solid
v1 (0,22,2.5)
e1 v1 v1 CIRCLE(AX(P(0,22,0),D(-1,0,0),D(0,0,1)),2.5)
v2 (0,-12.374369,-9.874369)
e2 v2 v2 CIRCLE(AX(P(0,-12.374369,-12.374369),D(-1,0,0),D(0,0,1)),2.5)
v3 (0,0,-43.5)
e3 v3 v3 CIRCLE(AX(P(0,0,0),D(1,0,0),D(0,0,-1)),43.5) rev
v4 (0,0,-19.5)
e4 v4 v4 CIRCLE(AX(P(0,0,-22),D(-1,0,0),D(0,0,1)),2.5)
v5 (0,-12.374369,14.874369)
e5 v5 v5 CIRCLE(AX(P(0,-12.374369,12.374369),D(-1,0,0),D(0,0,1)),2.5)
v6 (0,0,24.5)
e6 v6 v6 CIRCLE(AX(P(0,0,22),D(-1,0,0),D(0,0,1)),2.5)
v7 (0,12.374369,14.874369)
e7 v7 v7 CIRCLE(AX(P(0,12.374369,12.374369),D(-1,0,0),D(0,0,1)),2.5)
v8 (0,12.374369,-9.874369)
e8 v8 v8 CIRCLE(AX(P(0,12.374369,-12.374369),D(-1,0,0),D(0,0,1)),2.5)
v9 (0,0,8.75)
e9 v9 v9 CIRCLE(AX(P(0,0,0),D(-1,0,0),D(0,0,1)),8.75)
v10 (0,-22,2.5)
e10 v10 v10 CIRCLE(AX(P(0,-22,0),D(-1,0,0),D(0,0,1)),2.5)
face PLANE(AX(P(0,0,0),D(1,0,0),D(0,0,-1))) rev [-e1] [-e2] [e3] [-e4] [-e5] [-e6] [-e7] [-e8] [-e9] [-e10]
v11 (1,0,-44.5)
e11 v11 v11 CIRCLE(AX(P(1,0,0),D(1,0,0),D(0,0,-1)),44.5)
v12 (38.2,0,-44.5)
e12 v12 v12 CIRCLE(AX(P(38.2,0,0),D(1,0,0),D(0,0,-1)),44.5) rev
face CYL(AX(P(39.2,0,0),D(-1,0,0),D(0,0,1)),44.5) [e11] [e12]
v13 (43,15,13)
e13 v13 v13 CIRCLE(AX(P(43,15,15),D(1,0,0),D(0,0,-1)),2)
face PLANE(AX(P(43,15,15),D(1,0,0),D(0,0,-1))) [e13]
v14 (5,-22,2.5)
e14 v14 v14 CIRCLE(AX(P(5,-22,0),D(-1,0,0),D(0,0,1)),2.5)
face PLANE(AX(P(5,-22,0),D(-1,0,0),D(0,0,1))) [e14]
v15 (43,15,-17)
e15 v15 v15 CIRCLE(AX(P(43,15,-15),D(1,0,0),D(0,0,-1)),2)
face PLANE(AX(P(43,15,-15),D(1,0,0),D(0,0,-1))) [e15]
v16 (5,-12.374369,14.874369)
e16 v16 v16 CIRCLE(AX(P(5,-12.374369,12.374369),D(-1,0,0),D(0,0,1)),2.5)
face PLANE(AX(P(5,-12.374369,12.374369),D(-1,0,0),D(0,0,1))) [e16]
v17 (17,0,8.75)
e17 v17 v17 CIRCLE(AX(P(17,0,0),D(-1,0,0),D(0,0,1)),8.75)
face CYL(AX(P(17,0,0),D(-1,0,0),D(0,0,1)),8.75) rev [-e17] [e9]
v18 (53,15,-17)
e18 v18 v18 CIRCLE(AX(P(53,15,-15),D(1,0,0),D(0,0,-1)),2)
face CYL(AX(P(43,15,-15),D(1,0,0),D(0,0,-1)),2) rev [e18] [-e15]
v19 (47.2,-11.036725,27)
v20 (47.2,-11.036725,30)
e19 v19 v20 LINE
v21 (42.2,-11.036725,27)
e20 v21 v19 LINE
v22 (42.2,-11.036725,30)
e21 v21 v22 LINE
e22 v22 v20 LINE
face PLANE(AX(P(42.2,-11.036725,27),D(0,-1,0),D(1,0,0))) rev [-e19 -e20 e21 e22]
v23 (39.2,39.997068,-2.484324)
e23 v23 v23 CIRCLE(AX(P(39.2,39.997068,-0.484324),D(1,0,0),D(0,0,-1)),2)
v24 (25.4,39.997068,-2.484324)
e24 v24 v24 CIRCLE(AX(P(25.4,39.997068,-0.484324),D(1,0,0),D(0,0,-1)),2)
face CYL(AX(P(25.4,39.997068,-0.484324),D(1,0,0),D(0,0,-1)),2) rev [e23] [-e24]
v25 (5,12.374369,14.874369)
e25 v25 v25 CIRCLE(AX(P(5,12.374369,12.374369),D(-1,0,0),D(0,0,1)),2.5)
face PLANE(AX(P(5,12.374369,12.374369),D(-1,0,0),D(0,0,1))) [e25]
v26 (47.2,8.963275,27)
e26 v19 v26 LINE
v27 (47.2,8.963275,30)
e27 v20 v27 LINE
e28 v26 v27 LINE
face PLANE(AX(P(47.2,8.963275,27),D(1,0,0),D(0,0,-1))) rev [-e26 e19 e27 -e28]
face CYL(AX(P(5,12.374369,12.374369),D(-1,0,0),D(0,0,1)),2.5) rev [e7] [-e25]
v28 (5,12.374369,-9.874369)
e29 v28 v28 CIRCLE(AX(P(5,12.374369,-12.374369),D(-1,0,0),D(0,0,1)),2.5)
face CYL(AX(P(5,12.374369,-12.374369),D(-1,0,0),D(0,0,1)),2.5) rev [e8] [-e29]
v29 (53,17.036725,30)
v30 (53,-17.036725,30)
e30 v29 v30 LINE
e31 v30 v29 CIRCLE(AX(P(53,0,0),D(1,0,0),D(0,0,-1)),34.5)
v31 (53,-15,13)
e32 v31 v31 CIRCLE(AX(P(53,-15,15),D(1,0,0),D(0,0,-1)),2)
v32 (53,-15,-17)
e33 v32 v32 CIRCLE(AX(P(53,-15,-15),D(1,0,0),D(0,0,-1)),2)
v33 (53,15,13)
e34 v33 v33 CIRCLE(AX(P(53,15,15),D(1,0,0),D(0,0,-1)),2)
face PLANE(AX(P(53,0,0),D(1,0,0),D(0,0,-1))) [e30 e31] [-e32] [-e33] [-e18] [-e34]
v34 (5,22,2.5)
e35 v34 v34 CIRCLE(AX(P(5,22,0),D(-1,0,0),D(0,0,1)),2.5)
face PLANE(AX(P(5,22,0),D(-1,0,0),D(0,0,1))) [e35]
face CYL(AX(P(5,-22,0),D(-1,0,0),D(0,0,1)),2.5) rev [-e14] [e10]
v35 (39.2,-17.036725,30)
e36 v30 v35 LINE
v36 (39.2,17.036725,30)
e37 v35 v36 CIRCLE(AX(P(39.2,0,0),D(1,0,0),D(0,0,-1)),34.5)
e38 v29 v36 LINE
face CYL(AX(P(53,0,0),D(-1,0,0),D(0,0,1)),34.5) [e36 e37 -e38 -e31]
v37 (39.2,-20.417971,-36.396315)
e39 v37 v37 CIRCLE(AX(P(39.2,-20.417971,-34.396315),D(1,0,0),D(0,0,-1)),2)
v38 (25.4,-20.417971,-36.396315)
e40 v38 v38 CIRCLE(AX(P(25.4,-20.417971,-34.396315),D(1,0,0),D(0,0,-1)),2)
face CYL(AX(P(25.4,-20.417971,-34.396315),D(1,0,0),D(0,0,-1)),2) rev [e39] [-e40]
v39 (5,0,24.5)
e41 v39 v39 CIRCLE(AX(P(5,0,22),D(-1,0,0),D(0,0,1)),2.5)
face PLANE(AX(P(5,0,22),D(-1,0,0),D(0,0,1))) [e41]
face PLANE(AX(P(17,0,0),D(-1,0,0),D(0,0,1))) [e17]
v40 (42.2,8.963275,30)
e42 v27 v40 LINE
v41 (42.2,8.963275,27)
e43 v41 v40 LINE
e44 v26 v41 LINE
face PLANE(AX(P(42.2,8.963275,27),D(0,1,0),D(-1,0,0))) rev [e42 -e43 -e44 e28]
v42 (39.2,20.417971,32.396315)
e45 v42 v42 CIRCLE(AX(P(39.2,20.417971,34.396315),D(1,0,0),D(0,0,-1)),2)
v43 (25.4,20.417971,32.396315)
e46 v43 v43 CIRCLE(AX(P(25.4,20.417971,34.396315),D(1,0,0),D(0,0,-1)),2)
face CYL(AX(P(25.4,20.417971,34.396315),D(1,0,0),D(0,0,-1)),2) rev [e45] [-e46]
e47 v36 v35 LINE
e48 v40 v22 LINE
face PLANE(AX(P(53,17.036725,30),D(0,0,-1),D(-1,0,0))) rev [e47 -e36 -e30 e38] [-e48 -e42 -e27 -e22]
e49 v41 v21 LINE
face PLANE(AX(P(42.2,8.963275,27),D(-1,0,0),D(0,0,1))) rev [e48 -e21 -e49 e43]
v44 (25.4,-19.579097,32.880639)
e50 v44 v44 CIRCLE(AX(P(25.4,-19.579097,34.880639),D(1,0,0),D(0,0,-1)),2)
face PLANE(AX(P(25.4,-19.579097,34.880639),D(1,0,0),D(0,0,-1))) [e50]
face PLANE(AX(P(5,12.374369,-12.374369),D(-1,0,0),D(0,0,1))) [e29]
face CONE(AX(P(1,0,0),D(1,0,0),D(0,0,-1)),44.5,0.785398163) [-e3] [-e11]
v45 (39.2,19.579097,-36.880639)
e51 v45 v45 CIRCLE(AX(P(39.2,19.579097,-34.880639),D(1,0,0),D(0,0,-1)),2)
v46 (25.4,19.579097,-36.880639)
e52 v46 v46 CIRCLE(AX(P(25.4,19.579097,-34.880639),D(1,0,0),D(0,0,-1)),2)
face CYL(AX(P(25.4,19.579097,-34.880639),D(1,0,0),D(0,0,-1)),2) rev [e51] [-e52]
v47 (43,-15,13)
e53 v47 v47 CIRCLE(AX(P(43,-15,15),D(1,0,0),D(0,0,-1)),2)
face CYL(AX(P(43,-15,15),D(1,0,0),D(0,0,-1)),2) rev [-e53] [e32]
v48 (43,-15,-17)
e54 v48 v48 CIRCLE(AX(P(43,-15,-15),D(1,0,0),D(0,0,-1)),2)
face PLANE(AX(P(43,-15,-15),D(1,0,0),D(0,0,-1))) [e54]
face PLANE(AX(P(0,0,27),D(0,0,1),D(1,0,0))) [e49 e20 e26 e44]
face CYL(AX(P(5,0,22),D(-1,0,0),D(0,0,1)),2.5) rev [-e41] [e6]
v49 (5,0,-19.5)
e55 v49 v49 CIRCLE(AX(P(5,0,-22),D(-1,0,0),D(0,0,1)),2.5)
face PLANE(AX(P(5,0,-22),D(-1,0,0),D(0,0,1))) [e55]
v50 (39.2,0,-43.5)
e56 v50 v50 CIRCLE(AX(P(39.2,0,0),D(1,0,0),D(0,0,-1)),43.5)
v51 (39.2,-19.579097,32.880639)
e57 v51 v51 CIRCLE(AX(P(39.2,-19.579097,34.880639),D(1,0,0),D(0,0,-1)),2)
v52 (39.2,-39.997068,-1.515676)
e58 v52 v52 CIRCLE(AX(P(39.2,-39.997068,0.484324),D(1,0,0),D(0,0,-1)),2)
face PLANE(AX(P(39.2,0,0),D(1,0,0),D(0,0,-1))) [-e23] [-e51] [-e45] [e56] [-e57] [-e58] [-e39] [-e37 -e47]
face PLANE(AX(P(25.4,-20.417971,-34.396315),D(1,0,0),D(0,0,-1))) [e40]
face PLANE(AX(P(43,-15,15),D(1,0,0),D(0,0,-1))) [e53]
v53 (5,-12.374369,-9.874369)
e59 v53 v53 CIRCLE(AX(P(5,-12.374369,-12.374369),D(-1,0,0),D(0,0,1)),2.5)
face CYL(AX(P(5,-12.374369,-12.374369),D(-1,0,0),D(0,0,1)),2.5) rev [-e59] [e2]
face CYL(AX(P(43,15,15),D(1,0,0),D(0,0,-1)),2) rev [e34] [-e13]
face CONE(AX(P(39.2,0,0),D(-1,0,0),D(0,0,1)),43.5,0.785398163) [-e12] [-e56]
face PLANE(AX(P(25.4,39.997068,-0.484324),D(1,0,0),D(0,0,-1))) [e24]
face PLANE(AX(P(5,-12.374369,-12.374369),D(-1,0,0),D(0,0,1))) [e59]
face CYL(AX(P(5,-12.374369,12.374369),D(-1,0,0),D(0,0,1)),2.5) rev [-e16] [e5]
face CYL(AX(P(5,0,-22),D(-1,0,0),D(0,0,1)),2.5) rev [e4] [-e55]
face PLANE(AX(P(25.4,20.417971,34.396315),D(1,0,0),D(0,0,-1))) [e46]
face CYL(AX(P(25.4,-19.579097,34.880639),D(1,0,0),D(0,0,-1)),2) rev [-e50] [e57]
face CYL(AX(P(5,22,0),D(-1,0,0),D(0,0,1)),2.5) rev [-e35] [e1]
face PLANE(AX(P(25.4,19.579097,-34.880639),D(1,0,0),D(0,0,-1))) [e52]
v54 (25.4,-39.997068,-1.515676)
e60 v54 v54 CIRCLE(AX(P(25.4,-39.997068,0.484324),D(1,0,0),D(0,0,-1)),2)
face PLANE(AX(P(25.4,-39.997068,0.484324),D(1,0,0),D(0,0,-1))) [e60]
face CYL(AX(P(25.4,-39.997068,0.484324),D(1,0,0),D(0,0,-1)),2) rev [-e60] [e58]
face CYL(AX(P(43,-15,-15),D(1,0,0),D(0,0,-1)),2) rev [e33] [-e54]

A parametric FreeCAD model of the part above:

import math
import FreeCAD as App
import Part
import Sketcher

V = App.Vector


def edges_at(feature, points):
    """Names of the edges that pass closest to the given points."""
    edges = feature.Shape.Edges
    near = lambda p: min(range(len(edges)), key=lambda i: edges[i].distToShape(Part.Vertex(*p))[0])
    return sorted({f"Edge{near(p) + 1}" for p in points})

doc = App.newDocument("Part")
body = doc.addObject("PartDesign::Body", "Body")

# Sketch on YZ plane
sketch1 = doc.addObject("Sketcher::SketchObject", "Sketch")
body.addObject(sketch1)
sketch1.AttachmentSupport = (doc.YZ_Plane, [""])
sketch1.MapMode = "FlatFace"
sketch1.addGeometry(Part.Circle(V(0, 0, 0), V(0, 0, 1), 44), False)
sketch1.addConstraint([
    Sketcher.Constraint("Coincident", 0, 3, -1, 1),
    Sketcher.Constraint("Diameter", 0, 89.0),
])
pad1 = doc.addObject("PartDesign::Pad", "Pad")
body.addObject(pad1)
pad1.Profile = sketch1
pad1.Length = 39.2

# Sketch on YZ plane
sketch2 = doc.addObject("Sketcher::SketchObject", "Sketch001")
body.addObject(sketch2)
sketch2.AttachmentSupport = (doc.YZ_Plane, [""])
sketch2.MapMode = "FlatFace"
sketch2.AttachmentOffset = App.Placement(V(0, 0, 39.2), App.Rotation())
sketch2.addGeometry([
    Part.LineSegment(V(17, 30, 0), V(-17, 30, 0)),
    Part.ArcOfCircle(Part.Circle(V(0, 0, 0), V(0, 0, 1), 34), math.radians(120), math.radians(420)),
], False)
sketch2.addConstraint([
    Sketcher.Constraint("Coincident", 0, 1, 1, 2),
    Sketcher.Constraint("Coincident", 1, 1, 0, 2),
    Sketcher.Constraint("Horizontal", 0),
    Sketcher.Constraint("Coincident", 1, 3, -1, 1),
    Sketcher.Constraint("Radius", 1, 34.5),
    Sketcher.Constraint("DistanceY", -1, 1, 0, 1, 30.0),
])
pad2 = doc.addObject("PartDesign::Pad", "Pad001")
body.addObject(pad2)
pad2.Profile = sketch2
pad2.Length = 13.8

# Sketch on YZ plane
sketch3 = doc.addObject("Sketcher::SketchObject", "Sketch002")
body.addObject(sketch3)
sketch3.AttachmentSupport = (doc.YZ_Plane, [""])
sketch3.MapMode = "FlatFace"
sketch3.AttachmentOffset = App.Placement(V(0, 0, 39.2), App.Rotation())
sketch3.addGeometry([
    Part.Circle(V(40, -0.5, 0), V(0, 0, 1), 2),  # 0
    Part.Circle(V(19.6, -34.9, 0), V(0, 0, 1), 2),  # 1
    Part.Circle(V(-20.4, -34.4, 0), V(0, 0, 1), 2),  # 2
    Part.Circle(V(-40, 0.5, 0), V(0, 0, 1), 2),  # 3
    Part.Circle(V(-19.6, 34.9, 0), V(0, 0, 1), 2),  # 4
    Part.Circle(V(20.4, 34.4, 0), V(0, 0, 1), 2),  # 5
], False)
sketch3.addConstraint([
    Sketcher.Constraint("Equal", 0, 1),
    Sketcher.Constraint("Equal", 1, 2),
    Sketcher.Constraint("Equal", 2, 3),
    Sketcher.Constraint("Equal", 3, 4),
    Sketcher.Constraint("Equal", 4, 5),
    Sketcher.Constraint("Symmetric", 0, 3, 3, 3, -1, 1),
    Sketcher.Constraint("Symmetric", 1, 3, 4, 3, -1, 1),
    Sketcher.Constraint("Symmetric", 2, 3, 5, 3, -1, 1),
    Sketcher.Constraint("Diameter", 0, 4.0),
    Sketcher.Constraint("DistanceY", 1, 3, -1, 1, 34.880639),
    Sketcher.Constraint("DistanceX", 2, 3, -1, 1, 20.417971),
    Sketcher.Constraint("DistanceX", 1, 3, 0, 3, 20.417971),
    Sketcher.Constraint("DistanceX", 2, 3, 0, 3, 60.415038),
    Sketcher.Constraint("DistanceY", 2, 3, 0, 3, 33.911991),
    Sketcher.Constraint("DistanceY", 2, 3, 3, 3, 34.880639),
])
pocket1 = doc.addObject("PartDesign::Pocket", "Pocket")
body.addObject(pocket1)
pocket1.Profile = sketch3
pocket1.Length = 13.8

# Sketch on YZ plane
sketch4 = doc.addObject("Sketcher::SketchObject", "Sketch003")
body.addObject(sketch4)
sketch4.AttachmentSupport = (doc.YZ_Plane, [""])
sketch4.MapMode = "FlatFace"
sketch4.AttachmentOffset = App.Placement(V(0, 0, 53), App.Rotation())
sketch4.addGeometry([
    Part.Circle(V(15, 15, 0), V(0, 0, 1), 2),
    Part.Circle(V(15, -15, 0), V(0, 0, 1), 2),
    Part.Circle(V(-15, -15, 0), V(0, 0, 1), 2),
    Part.Circle(V(-15, 15, 0), V(0, 0, 1), 2),
], False)
sketch4.addConstraint([
    Sketcher.Constraint("Equal", 0, 1),
    Sketcher.Constraint("Equal", 1, 2),
    Sketcher.Constraint("Equal", 2, 3),
    Sketcher.Constraint("Symmetric", 0, 3, 2, 3, -1, 1),
    Sketcher.Constraint("Symmetric", 1, 3, 3, 3, -1, 1),
    Sketcher.Constraint("Symmetric", 1, 3, 2, 3, -2),
    Sketcher.Constraint("Diameter", 0, 4.0),
    Sketcher.Constraint("DistanceX", -1, 1, 0, 3, 15.0),
    Sketcher.Constraint("DistanceY", -1, 1, 0, 3, 15.0),
])
pocket2 = doc.addObject("PartDesign::Pocket", "Pocket001")
body.addObject(pocket2)
pocket2.Profile = sketch4
pocket2.Length = 10
doc.recompute()

chamfer = doc.addObject("PartDesign::Chamfer", "Chamfer")
body.addObject(chamfer)
chamfer.Base = (pocket2, edges_at(pocket2, [(0, 0, 44.5), (39.2, 0, 44.5)]))
chamfer.Size = 1

# Sketch on YZ plane
sketch5 = doc.addObject("Sketcher::SketchObject", "Sketch004")
body.addObject(sketch5)
sketch5.AttachmentSupport = (doc.YZ_Plane, [""])
sketch5.MapMode = "FlatFace"
sketch5.addGeometry([
    Part.Circle(V(22, 0, 0), V(0, 0, 1), 2.5),  # 0
    Part.Circle(V(12.4, -12.4, 0), V(0, 0, 1), 2.5),  # 1
    Part.Circle(V(0, 22, 0), V(0, 0, 1), 2.5),  # 2
    Part.Circle(V(12.4, 12.4, 0), V(0, 0, 1), 2.5),  # 3
    Part.Circle(V(-22, 0, 0), V(0, 0, 1), 2.5),  # 4
    Part.Circle(V(-12.4, 12.4, 0), V(0, 0, 1), 2.5),  # 5
    Part.Circle(V(0, -22, 0), V(0, 0, 1), 2.5),  # 6
    Part.Circle(V(-12.4, -12.4, 0), V(0, 0, 1), 2.5),  # 7
], False)
sketch5.addConstraint([
    Sketcher.Constraint("Equal", 0, 1),
    Sketcher.Constraint("Equal", 1, 2),
    Sketcher.Constraint("Equal", 2, 3),
    Sketcher.Constraint("Equal", 3, 4),
    Sketcher.Constraint("Equal", 4, 5),
    Sketcher.Constraint("Equal", 5, 6),
    Sketcher.Constraint("Equal", 6, 7),
    Sketcher.Constraint("Symmetric", 0, 3, 4, 3, -1, 1),
    Sketcher.Constraint("Symmetric", 1, 3, 5, 3, -1, 1),
    Sketcher.Constraint("Symmetric", 2, 3, 6, 3, -1, 1),
    Sketcher.Constraint("Symmetric", 3, 3, 7, 3, -1, 1),
    Sketcher.Constraint("Symmetric", 3, 3, 5, 3, -2),
    Sketcher.Constraint("PointOnObject", 0, 3, -1),
    Sketcher.Constraint("PointOnObject", 2, 3, -2),
    Sketcher.Constraint("Diameter", 0, 5.0),
    Sketcher.Constraint("DistanceX", -1, 1, 0, 3, 22.0),
    Sketcher.Constraint("DistanceY", -1, 1, 2, 3, 22.0),
    Sketcher.Constraint("DistanceX", -1, 1, 1, 3, 12.374369),
    Sketcher.Constraint("DistanceY", 1, 3, -1, 1, 12.374369),
])
pocket3 = doc.addObject("PartDesign::Pocket", "Pocket002")
body.addObject(pocket3)
pocket3.Profile = sketch5
pocket3.Length = 5
pocket3.Reversed = True

# Sketch on XY plane
sketch6 = doc.addObject("Sketcher::SketchObject", "Sketch005")
body.addObject(sketch6)
sketch6.AttachmentSupport = (doc.XY_Plane, [""])
sketch6.MapMode = "FlatFace"
sketch6.AttachmentOffset = App.Placement(V(0, 0, 30), App.Rotation())
sketch6.addGeometry([
    Part.LineSegment(V(42, 9, 0), V(42, -11, 0)),
    Part.LineSegment(V(42, -11, 0), V(47, -11, 0)),
    Part.LineSegment(V(47, -11, 0), V(47, 9, 0)),
    Part.LineSegment(V(47, 9, 0), V(42, 9, 0)),
], False)
sketch6.addConstraint([
    Sketcher.Constraint("Coincident", 0, 2, 1, 1),
    Sketcher.Constraint("Coincident", 1, 2, 2, 1),
    Sketcher.Constraint("Coincident", 2, 2, 3, 1),
    Sketcher.Constraint("Coincident", 3, 2, 0, 1),
    Sketcher.Constraint("Vertical", 0),
    Sketcher.Constraint("Horizontal", 1),
    Sketcher.Constraint("Vertical", 2),
    Sketcher.Constraint("Horizontal", 3),
    Sketcher.Constraint("DistanceX", 1, 1, 1, 2, 5.0),
    Sketcher.Constraint("DistanceY", 0, 2, 0, 1, 20.0),
    Sketcher.Constraint("DistanceX", -1, 1, 0, 2, 42.2),
    Sketcher.Constraint("DistanceY", 0, 2, -1, 1, 11.036725),
])
pocket4 = doc.addObject("PartDesign::Pocket", "Pocket003")
body.addObject(pocket4)
pocket4.Profile = sketch6
pocket4.Length = 3

# Sketch on YZ plane
sketch7 = doc.addObject("Sketcher::SketchObject", "Sketch006")
body.addObject(sketch7)
sketch7.AttachmentSupport = (doc.YZ_Plane, [""])
sketch7.MapMode = "FlatFace"
sketch7.addGeometry(Part.Circle(V(0, 0, 0), V(0, 0, 1), 9), False)
sketch7.addConstraint([
    Sketcher.Constraint("Coincident", 0, 3, -1, 1),
    Sketcher.Constraint("Diameter", 0, 17.5),
])
pocket5 = doc.addObject("PartDesign::Pocket", "Pocket004")
body.addObject(pocket5)
pocket5.Profile = sketch7
pocket5.Length = 17
pocket5.Reversed = True

doc.recompute()
